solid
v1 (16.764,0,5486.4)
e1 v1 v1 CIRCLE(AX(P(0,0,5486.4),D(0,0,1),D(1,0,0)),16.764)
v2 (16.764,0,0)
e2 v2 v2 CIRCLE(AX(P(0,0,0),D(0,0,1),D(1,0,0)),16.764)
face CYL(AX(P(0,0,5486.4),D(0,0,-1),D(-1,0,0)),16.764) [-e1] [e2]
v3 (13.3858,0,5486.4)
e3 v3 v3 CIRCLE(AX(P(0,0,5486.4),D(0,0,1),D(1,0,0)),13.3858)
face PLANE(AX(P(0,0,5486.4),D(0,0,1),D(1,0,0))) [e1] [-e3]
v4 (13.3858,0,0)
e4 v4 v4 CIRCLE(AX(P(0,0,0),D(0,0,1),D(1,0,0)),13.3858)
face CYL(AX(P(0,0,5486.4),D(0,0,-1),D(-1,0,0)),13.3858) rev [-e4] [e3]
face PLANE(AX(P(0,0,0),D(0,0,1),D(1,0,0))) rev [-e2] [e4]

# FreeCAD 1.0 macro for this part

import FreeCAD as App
import Part
import Sketcher
Q = App.Units.Quantity

doc = App.newDocument("Part")
body = doc.addObject("PartDesign::Body", "Body")

sketch1 = body.newObject("Sketcher::SketchObject", "Sketch")
sketch1.AttachmentSupport = (doc.getObject("XY_Plane"), [""])
sketch1.MapMode = "FlatFace"
sketch1.addGeometry(Part.Circle(App.Vector(0, 0, 0), App.Vector(0, 0, 1), 17), False)
sketch1.addGeometry(Part.Circle(App.Vector(0, 0, 0), App.Vector(0, 0, 1), 13), False)
sketch1.addConstraint(Sketcher.Constraint("Coincident", 0, 3, -1, 1))
sketch1.addConstraint(Sketcher.Constraint("Coincident", 1, 3, -1, 1))
sketch1.addConstraint(Sketcher.Constraint("Diameter", 0, Q("1.32 in")))
sketch1.addConstraint(Sketcher.Constraint("Diameter", 1, Q("1.054 in")))
pad1 = body.newObject("PartDesign::Pad", "Pad")
pad1.Profile = sketch1
pad1.Length = Q("216 in")

doc.recompute()
